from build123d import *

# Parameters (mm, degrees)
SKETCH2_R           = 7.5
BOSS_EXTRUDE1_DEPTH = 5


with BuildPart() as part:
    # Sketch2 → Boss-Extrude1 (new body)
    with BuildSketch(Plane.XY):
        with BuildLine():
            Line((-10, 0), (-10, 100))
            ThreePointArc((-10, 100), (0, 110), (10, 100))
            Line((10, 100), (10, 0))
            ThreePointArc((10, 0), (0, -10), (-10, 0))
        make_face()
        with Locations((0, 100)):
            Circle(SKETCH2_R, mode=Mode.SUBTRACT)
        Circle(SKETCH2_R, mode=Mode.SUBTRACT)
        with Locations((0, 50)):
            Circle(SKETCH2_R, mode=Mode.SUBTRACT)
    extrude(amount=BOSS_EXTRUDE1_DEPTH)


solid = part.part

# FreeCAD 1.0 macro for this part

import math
import FreeCAD as App
import Part
import Sketcher
Q = App.Units.Quantity

doc = App.newDocument("Part")
body = doc.addObject("PartDesign::Body", "Body")

# Sketch on XY plane
sketch1 = body.newObject("Sketcher::SketchObject", "Sketch")
sketch1.AttachmentSupport = (doc.getObject("XY_Plane"), [""])
sketch1.MapMode = "FlatFace"
sketch1.addGeometry([
    Part.LineSegment(App.Vector(-10, 100, 0), App.Vector(-10, 0, 0)),  # 0
    Part.ArcOfCircle(Part.Circle(App.Vector(0, 0, 0), App.Vector(0, 0, 1), 10), math.radians(180), math.radians(360)),  # 1
    Part.LineSegment(App.Vector(10, 0, 0), App.Vector(10, 100, 0)),  # 2
    Part.ArcOfCircle(Part.Circle(App.Vector(0, 100, 0), App.Vector(0, 0, 1), 10), math.radians(0), math.radians(180)),  # 3
    Part.Circle(App.Vector(0, 0, 0), App.Vector(0, 0, 1), 8),  # 4
    Part.Circle(App.Vector(0, 50, 0), App.Vector(0, 0, 1), 8),  # 5
    Part.Circle(App.Vector(0, 100, 0), App.Vector(0, 0, 1), 8),  # 6
], False)
sketch1.addConstraint([
    Sketcher.Constraint("Tangent", 0, 2, 1, 1),
    Sketcher.Constraint("Tangent", 1, 2, 2, 1),
    Sketcher.Constraint("Tangent", 2, 2, 3, 1),
    Sketcher.Constraint("Tangent", 3, 2, 0, 1),
    Sketcher.Constraint("Vertical", 0),
    Sketcher.Constraint("Vertical", 2),
    Sketcher.Constraint("Coincident", 1, 3, -1, 1),
    Sketcher.Constraint("Coincident", 4, 3, -1, 1),
    Sketcher.Constraint("Coincident", 6, 3, 3, 3),
    Sketcher.Constraint("Equal", 4, 5),
    Sketcher.Constraint("Equal", 5, 6),
    Sketcher.Constraint("PointOnObject", 5, 3, -2),
    Sketcher.Constraint("Diameter", 4, Q("15 mm")),
    Sketcher.Constraint("Radius", 1, Q("10 mm")),
    Sketcher.Constraint("DistanceY", 0, 2, 0, 1, Q("100 mm")),
    Sketcher.Constraint("DistanceY", -1, 1, 5, 3, Q("50 mm")),
])
pad1 = body.newObject("PartDesign::Pad", "Pad")
pad1.Profile = sketch1
pad1.Length = 5

doc.recompute()
